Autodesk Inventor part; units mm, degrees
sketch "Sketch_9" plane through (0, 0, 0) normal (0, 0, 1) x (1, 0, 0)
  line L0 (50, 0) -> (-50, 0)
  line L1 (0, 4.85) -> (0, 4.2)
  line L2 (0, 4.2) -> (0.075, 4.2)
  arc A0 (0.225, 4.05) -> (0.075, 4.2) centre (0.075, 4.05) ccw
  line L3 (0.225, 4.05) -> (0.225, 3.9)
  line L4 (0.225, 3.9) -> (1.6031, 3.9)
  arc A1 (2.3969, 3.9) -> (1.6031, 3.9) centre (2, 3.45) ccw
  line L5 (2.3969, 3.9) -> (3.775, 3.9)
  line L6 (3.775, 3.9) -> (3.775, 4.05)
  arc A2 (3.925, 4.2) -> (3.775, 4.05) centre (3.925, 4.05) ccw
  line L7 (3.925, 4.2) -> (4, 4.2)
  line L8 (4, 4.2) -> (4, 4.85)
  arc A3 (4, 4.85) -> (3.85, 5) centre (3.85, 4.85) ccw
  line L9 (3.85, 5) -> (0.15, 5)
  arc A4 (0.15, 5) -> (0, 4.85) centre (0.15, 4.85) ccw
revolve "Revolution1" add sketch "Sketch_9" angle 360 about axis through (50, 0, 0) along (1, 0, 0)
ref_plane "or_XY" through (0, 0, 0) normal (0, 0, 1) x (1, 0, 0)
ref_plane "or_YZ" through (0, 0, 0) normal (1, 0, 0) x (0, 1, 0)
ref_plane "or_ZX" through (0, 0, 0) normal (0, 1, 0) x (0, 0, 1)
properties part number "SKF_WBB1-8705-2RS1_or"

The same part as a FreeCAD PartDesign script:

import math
import FreeCAD as App
import Part
import Sketcher

doc = App.newDocument("Part")
body = doc.addObject("PartDesign::Body", "Body")

# Sketch on XY plane
sketch1 = body.newObject("Sketcher::SketchObject", "Sketch")
sketch1.AttachmentSupport = (doc.getObject("XY_Plane"), [""])
sketch1.MapMode = "FlatFace"
sketch1.addGeometry([
    Part.ArcOfCircle(Part.Circle(App.Vector(0.15, 4.85, 0), App.Vector(0, 0, 1), 0.15), math.radians(90), math.radians(180)),  # 0
    Part.LineSegment(App.Vector(0, 4.85, 0), App.Vector(0, 4.2, 0)),  # 1
    Part.LineSegment(App.Vector(0, 4.2, 0), App.Vector(0.07, 4.2, 0)),  # 2
    Part.ArcOfCircle(Part.Circle(App.Vector(0.07, 4.05, 0), App.Vector(0, 0, 1), 0.15), math.radians(0), math.radians(90)),  # 3
    Part.LineSegment(App.Vector(0.23, 4.05, 0), App.Vector(0.23, 3.9, 0)),  # 4
    Part.LineSegment(App.Vector(0.23, 3.9, 0), App.Vector(1.6, 3.9, 0)),  # 5
    Part.ArcOfCircle(Part.Circle(App.Vector(2, 3.45, 0), App.Vector(0, 0, 1), 0.6), math.radians(49), math.radians(131)),  # 6
    Part.LineSegment(App.Vector(2.4, 3.9, 0), App.Vector(3.77, 3.9, 0)),  # 7
    Part.LineSegment(App.Vector(3.77, 3.9, 0), App.Vector(3.77, 4.05, 0)),  # 8
    Part.ArcOfCircle(Part.Circle(App.Vector(3.92, 4.05, 0), App.Vector(0, 0, 1), 0.15), math.radians(90), math.radians(180)),  # 9
    Part.LineSegment(App.Vector(3.92, 4.2, 0), App.Vector(4, 4.2, 0)),  # 10
    Part.LineSegment(App.Vector(4, 4.2, 0), App.Vector(4, 4.85, 0)),  # 11
    Part.ArcOfCircle(Part.Circle(App.Vector(3.85, 4.85, 0), App.Vector(0, 0, 1), 0.15), math.radians(0), math.radians(90)),  # 12
    Part.LineSegment(App.Vector(3.85, 5, 0), App.Vector(0.15, 5, 0)),  # 13
], False)
sketch1.addConstraint([
    Sketcher.Constraint("Tangent", 0, 2, 1, 1),
    Sketcher.Constraint("Coincident", 1, 2, 2, 1),
    Sketcher.Constraint("Tangent", 2, 2, 3, 2),
    Sketcher.Constraint("Tangent", 3, 1, 4, 1),
    Sketcher.Constraint("Coincident", 4, 2, 5, 1),
    Sketcher.Constraint("Coincident", 5, 2, 6, 2),
    Sketcher.Constraint("Coincident", 6, 1, 7, 1),
    Sketcher.Constraint("Coincident", 7, 2, 8, 1),
    Sketcher.Constraint("Tangent", 8, 2, 9, 2),
    Sketcher.Constraint("Tangent", 9, 1, 10, 1),
    Sketcher.Constraint("Coincident", 10, 2, 11, 1),
    Sketcher.Constraint("Tangent", 11, 2, 12, 1),
    Sketcher.Constraint("Tangent", 12, 2, 13, 1),
    Sketcher.Constraint("Tangent", 13, 2, 0, 1),
    Sketcher.Constraint("Vertical", 1),
    Sketcher.Constraint("Horizontal", 2),
    Sketcher.Constraint("Vertical", 4),
    Sketcher.Constraint("Horizontal", 5),
    Sketcher.Constraint("Horizontal", 7),
    Sketcher.Constraint("Vertical", 8),
    Sketcher.Constraint("Horizontal", 10),
    Sketcher.Constraint("Vertical", 11),
    Sketcher.Constraint("Horizontal", 13),
    Sketcher.Constraint("Equal", 0, 3),
    Sketcher.Constraint("Equal", 3, 9),
    Sketcher.Constraint("Equal", 9, 12),
    Sketcher.Constraint("PointOnObject", 0, 2, -2),
    Sketcher.Constraint("Horizontal", 3, 3, 9, 3),
    Sketcher.Constraint("Horizontal", 5, 2, 6, 1),
    Sketcher.Constraint("Equal", 5, 7),
    Sketcher.Constraint("Equal", 2, 10),
    Sketcher.Constraint("Radius", 6, 0.6),
    Sketcher.Constraint("Radius", 0, 0.15),
    Sketcher.Constraint("DistanceX", 13, 2, 13, 1, 3.7),
    Sketcher.Constraint("DistanceY", -1, 1, 12, 2, 5.0),
    Sketcher.Constraint("DistanceY", 1, 2, 1, 1, 0.65),
    Sketcher.Constraint("DistanceY", 4, 2, 4, 1, 0.15),
    Sketcher.Constraint("DistanceY", 6, 3, 3, 3, 0.6),
    Sketcher.Constraint("DistanceX", 2, 1, 2, 2, 0.075),
])
revolution = body.newObject("PartDesign::Revolution", "Revolution")
revolution.Profile = sketch1
revolution.ReferenceAxis = (sketch1, ["H_Axis"])
revolution.Angle = 360

doc.recompute()
